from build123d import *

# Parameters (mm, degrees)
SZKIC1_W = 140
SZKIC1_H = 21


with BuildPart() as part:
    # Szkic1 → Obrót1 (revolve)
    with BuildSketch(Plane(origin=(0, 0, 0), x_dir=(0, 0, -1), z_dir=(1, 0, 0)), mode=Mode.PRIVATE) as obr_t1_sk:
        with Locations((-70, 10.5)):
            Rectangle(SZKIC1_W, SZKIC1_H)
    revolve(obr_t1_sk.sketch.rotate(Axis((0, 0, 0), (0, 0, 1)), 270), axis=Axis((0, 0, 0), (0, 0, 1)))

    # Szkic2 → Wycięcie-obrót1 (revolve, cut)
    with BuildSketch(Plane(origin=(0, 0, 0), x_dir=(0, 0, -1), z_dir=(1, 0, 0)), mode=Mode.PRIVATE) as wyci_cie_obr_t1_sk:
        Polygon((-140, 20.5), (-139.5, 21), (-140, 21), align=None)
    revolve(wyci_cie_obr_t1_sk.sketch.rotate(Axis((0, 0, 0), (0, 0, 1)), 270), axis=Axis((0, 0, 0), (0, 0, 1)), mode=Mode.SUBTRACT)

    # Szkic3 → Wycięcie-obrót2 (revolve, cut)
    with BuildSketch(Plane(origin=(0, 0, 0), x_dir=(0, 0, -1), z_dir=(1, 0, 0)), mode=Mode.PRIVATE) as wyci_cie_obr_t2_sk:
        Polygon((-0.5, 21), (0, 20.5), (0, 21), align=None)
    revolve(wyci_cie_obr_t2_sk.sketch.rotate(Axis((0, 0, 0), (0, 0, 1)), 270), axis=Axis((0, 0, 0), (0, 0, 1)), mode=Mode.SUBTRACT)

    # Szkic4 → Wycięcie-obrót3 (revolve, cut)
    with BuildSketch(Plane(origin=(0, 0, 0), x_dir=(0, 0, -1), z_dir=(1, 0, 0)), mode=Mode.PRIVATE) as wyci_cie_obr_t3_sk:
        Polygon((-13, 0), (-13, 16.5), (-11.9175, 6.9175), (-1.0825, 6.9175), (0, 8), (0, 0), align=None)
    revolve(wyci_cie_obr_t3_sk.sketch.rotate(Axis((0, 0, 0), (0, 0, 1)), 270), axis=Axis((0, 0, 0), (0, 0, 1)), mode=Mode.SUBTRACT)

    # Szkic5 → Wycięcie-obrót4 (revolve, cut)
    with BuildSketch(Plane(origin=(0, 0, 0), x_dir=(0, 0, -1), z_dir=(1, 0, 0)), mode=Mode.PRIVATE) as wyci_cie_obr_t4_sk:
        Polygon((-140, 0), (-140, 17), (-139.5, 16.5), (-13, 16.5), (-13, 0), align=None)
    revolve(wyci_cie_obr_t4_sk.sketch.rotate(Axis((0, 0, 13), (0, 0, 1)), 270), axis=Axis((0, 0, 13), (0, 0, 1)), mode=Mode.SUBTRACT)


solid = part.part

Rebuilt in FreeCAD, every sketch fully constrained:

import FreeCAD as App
import Part
import Sketcher

V = App.Vector
Q = App.Units.Quantity

doc = App.newDocument("Part")
body = doc.addObject("PartDesign::Body", "Body")

sketch1 = body.newObject("Sketcher::SketchObject", "Sketch")
sketch1.AttachmentSupport = (doc.getObject("YZ_Plane"), [""])
sketch1.MapMode = "FlatFace"
sketch1.addGeometry(Part.LineSegment(V(21, 140, 0), V(0, 140, 0)), False)
sketch1.addGeometry(Part.LineSegment(V(0, 140, 0), V(0, 0, 0)), False)
sketch1.addGeometry(Part.LineSegment(V(0, 0, 0), V(21, 0, 0)), False)
sketch1.addGeometry(Part.LineSegment(V(21, 0, 0), V(21, 140, 0)), False)
sketch1.addConstraint(Sketcher.Constraint("Coincident", 0, 2, 1, 1))
sketch1.addConstraint(Sketcher.Constraint("Coincident", 1, 2, 2, 1))
sketch1.addConstraint(Sketcher.Constraint("Coincident", 2, 2, 3, 1))
sketch1.addConstraint(Sketcher.Constraint("Coincident", 3, 2, 0, 1))
sketch1.addConstraint(Sketcher.Constraint("Horizontal", 0))
sketch1.addConstraint(Sketcher.Constraint("Vertical", 1))
sketch1.addConstraint(Sketcher.Constraint("Horizontal", 2))
sketch1.addConstraint(Sketcher.Constraint("Vertical", 3))
sketch1.addConstraint(Sketcher.Constraint("Coincident", 1, 2, -1, 1))
sketch1.addConstraint(Sketcher.Constraint("DistanceX", 0, 2, 0, 1, 21.0))
sketch1.addConstraint(Sketcher.Constraint("DistanceY", 1, 2, 1, 1, 140.0))
revolution = body.newObject("PartDesign::Revolution", "Revolution")
revolution.Profile = sketch1
revolution.ReferenceAxis = (sketch1, ["V_Axis"])
revolution.Angle = 360

sketch2 = body.newObject("Sketcher::SketchObject", "Sketch001")
sketch2.AttachmentSupport = (doc.getObject("YZ_Plane"), [""])
sketch2.MapMode = "FlatFace"
sketch2.addGeometry(Part.LineSegment(V(20.5, 140, 0), V(21, 139.5, 0)), False)
sketch2.addGeometry(Part.LineSegment(V(21, 139.5, 0), V(21, 140, 0)), False)
sketch2.addGeometry(Part.LineSegment(V(21, 140, 0), V(20.5, 140, 0)), False)
sketch2.addConstraint(Sketcher.Constraint("Coincident", 0, 2, 1, 1))
sketch2.addConstraint(Sketcher.Constraint("Coincident", 1, 2, 2, 1))
sketch2.addConstraint(Sketcher.Constraint("Coincident", 2, 2, 0, 1))
sketch2.addConstraint(Sketcher.Constraint("Vertical", 1))
sketch2.addConstraint(Sketcher.Constraint("Horizontal", 2))
sketch2.addConstraint(Sketcher.Constraint("Equal", 2, 1))
sketch2.addConstraint(Sketcher.Constraint("DistanceX", 2, 2, 2, 1, 0.5))
sketch2.addConstraint(Sketcher.Constraint("DistanceX", -1, 1, 0, 2, 21.0))
sketch2.addConstraint(Sketcher.Constraint("DistanceY", -1, 1, 1, 2, 140.0))
groove = body.newObject("PartDesign::Groove", "Groove")
groove.Profile = sketch2
groove.ReferenceAxis = (sketch2, ["V_Axis"])
groove.Angle = 360

sketch3 = body.newObject("Sketcher::SketchObject", "Sketch002")
sketch3.AttachmentSupport = (doc.getObject("YZ_Plane"), [""])
sketch3.MapMode = "FlatFace"
sketch3.addGeometry(Part.LineSegment(V(21, 0.5, 0), V(20.5, 0, 0)), False)
sketch3.addGeometry(Part.LineSegment(V(20.5, 0, 0), V(21, 0, 0)), False)
sketch3.addGeometry(Part.LineSegment(V(21, 0, 0), V(21, 0.5, 0)), False)
sketch3.addConstraint(Sketcher.Constraint("Coincident", 0, 2, 1, 1))
sketch3.addConstraint(Sketcher.Constraint("Coincident", 1, 2, 2, 1))
sketch3.addConstraint(Sketcher.Constraint("Coincident", 2, 2, 0, 1))
sketch3.addConstraint(Sketcher.Constraint("Horizontal", 1))
sketch3.addConstraint(Sketcher.Constraint("Vertical", 2))
sketch3.addConstraint(Sketcher.Constraint("PointOnObject", 0, 2, -1))
sketch3.addConstraint(Sketcher.Constraint("Equal", 1, 2))
sketch3.addConstraint(Sketcher.Constraint("DistanceX", 1, 1, 1, 2, 0.5))
sketch3.addConstraint(Sketcher.Constraint("DistanceX", -1, 1, 1, 2, 21.0))
groove2 = body.newObject("PartDesign::Groove", "Groove001")
groove2.Profile = sketch3
groove2.ReferenceAxis = (sketch3, ["V_Axis"])
groove2.Angle = 360

sketch4 = body.newObject("Sketcher::SketchObject", "Sketch003")
sketch4.AttachmentSupport = (doc.getObject("YZ_Plane"), [""])
sketch4.MapMode = "FlatFace"
sketch4.addGeometry(Part.LineSegment(V(16.5, 13, 0), V(0, 13, 0)), False)
sketch4.addGeometry(Part.LineSegment(V(0, 13, 0), V(0, 0, 0)), False)
sketch4.addGeometry(Part.LineSegment(V(0, 0, 0), V(8, 0, 0)), False)
sketch4.addGeometry(Part.LineSegment(V(8, 0, 0), V(6.9, 1.1, 0)), False)
sketch4.addGeometry(Part.LineSegment(V(6.9, 1.1, 0), V(6.9, 11.9, 0)), False)
sketch4.addGeometry(Part.LineSegment(V(6.9, 11.9, 0), V(16.5, 13, 0)), False)
sketch4.addConstraint(Sketcher.Constraint("Coincident", 0, 2, 1, 1))
sketch4.addConstraint(Sketcher.Constraint("Coincident", 1, 2, 2, 1))
sketch4.addConstraint(Sketcher.Constraint("Coincident", 2, 2, 3, 1))
sketch4.addConstraint(Sketcher.Constraint("Coincident", 3, 2, 4, 1))
sketch4.addConstraint(Sketcher.Constraint("Coincident", 4, 2, 5, 1))
sketch4.addConstraint(Sketcher.Constraint("Coincident", 5, 2, 0, 1))
sketch4.addConstraint(Sketcher.Constraint("Horizontal", 0))
sketch4.addConstraint(Sketcher.Constraint("Vertical", 1))
sketch4.addConstraint(Sketcher.Constraint("Horizontal", 2))
sketch4.addConstraint(Sketcher.Constraint("Vertical", 4))
sketch4.addConstraint(Sketcher.Constraint("Coincident", 1, 2, -1, 1))
sketch4.addConstraint(Sketcher.Constraint("DistanceX", 2, 1, 2, 2, 8.0))
sketch4.addConstraint(Sketcher.Constraint("DistanceY", 1, 2, 1, 1, 13.0))
sketch4.addConstraint(Sketcher.Constraint("Angle", 3, Q("135 deg")))
sketch4.addConstraint(Sketcher.Constraint("DistanceX", 0, 2, 0, 1, 16.5))
sketch4.addConstraint(Sketcher.Constraint("DistanceY", 4, 1, 4, 2, 10.835))
sketch4.addConstraint(Sketcher.Constraint("DistanceX", -1, 1, 3, 2, 6.9175))
groove3 = body.newObject("PartDesign::Groove", "Groove002")
groove3.Profile = sketch4
groove3.ReferenceAxis = (sketch4, ["V_Axis"])
groove3.Angle = 360

sketch5 = body.newObject("Sketcher::SketchObject", "Sketch004")
sketch5.AttachmentSupport = (doc.getObject("YZ_Plane"), [""])
sketch5.MapMode = "FlatFace"
sketch5.addGeometry(Part.LineSegment(V(17, 140, 0), V(0, 140, 0)), False)
sketch5.addGeometry(Part.LineSegment(V(0, 140, 0), V(0, 13, 0)), False)
sketch5.addGeometry(Part.LineSegment(V(0, 13, 0), V(16.5, 13, 0)), False)
sketch5.addGeometry(Part.LineSegment(V(16.5, 13, 0), V(16.5, 139.5, 0)), False)
sketch5.addGeometry(Part.LineSegment(V(16.5, 139.5, 0), V(17, 140, 0)), False)
sketch5.addConstraint(Sketcher.Constraint("Coincident", 0, 2, 1, 1))
sketch5.addConstraint(Sketcher.Constraint("Coincident", 1, 2, 2, 1))
sketch5.addConstraint(Sketcher.Constraint("Coincident", 2, 2, 3, 1))
sketch5.addConstraint(Sketcher.Constraint("Coincident", 3, 2, 4, 1))
sketch5.addConstraint(Sketcher.Constraint("Coincident", 4, 2, 0, 1))
sketch5.addConstraint(Sketcher.Constraint("Horizontal", 0))
sketch5.addConstraint(Sketcher.Constraint("Vertical", 1))
sketch5.addConstraint(Sketcher.Constraint("Horizontal", 2))
sketch5.addConstraint(Sketcher.Constraint("Vertical", 3))
sketch5.addConstraint(Sketcher.Constraint("PointOnObject", 0, 2, -2))
sketch5.addConstraint(Sketcher.Constraint("DistanceX", 0, 2, 0, 1, 17.0))
sketch5.addConstraint(Sketcher.Constraint("DistanceY", 1, 2, 1, 1, 127.0))
sketch5.addConstraint(Sketcher.Constraint("Angle", 4, Q("45 deg")))
sketch5.addConstraint(Sketcher.Constraint("DistanceX", 2, 1, 2, 2, 16.5))
sketch5.addConstraint(Sketcher.Constraint("DistanceY", -1, 1, 0, 2, 140.0))
groove4 = body.newObject("PartDesign::Groove", "Groove003")
groove4.Profile = sketch5
groove4.ReferenceAxis = (sketch5, ["V_Axis"])
groove4.Angle = 360

doc.recompute()
